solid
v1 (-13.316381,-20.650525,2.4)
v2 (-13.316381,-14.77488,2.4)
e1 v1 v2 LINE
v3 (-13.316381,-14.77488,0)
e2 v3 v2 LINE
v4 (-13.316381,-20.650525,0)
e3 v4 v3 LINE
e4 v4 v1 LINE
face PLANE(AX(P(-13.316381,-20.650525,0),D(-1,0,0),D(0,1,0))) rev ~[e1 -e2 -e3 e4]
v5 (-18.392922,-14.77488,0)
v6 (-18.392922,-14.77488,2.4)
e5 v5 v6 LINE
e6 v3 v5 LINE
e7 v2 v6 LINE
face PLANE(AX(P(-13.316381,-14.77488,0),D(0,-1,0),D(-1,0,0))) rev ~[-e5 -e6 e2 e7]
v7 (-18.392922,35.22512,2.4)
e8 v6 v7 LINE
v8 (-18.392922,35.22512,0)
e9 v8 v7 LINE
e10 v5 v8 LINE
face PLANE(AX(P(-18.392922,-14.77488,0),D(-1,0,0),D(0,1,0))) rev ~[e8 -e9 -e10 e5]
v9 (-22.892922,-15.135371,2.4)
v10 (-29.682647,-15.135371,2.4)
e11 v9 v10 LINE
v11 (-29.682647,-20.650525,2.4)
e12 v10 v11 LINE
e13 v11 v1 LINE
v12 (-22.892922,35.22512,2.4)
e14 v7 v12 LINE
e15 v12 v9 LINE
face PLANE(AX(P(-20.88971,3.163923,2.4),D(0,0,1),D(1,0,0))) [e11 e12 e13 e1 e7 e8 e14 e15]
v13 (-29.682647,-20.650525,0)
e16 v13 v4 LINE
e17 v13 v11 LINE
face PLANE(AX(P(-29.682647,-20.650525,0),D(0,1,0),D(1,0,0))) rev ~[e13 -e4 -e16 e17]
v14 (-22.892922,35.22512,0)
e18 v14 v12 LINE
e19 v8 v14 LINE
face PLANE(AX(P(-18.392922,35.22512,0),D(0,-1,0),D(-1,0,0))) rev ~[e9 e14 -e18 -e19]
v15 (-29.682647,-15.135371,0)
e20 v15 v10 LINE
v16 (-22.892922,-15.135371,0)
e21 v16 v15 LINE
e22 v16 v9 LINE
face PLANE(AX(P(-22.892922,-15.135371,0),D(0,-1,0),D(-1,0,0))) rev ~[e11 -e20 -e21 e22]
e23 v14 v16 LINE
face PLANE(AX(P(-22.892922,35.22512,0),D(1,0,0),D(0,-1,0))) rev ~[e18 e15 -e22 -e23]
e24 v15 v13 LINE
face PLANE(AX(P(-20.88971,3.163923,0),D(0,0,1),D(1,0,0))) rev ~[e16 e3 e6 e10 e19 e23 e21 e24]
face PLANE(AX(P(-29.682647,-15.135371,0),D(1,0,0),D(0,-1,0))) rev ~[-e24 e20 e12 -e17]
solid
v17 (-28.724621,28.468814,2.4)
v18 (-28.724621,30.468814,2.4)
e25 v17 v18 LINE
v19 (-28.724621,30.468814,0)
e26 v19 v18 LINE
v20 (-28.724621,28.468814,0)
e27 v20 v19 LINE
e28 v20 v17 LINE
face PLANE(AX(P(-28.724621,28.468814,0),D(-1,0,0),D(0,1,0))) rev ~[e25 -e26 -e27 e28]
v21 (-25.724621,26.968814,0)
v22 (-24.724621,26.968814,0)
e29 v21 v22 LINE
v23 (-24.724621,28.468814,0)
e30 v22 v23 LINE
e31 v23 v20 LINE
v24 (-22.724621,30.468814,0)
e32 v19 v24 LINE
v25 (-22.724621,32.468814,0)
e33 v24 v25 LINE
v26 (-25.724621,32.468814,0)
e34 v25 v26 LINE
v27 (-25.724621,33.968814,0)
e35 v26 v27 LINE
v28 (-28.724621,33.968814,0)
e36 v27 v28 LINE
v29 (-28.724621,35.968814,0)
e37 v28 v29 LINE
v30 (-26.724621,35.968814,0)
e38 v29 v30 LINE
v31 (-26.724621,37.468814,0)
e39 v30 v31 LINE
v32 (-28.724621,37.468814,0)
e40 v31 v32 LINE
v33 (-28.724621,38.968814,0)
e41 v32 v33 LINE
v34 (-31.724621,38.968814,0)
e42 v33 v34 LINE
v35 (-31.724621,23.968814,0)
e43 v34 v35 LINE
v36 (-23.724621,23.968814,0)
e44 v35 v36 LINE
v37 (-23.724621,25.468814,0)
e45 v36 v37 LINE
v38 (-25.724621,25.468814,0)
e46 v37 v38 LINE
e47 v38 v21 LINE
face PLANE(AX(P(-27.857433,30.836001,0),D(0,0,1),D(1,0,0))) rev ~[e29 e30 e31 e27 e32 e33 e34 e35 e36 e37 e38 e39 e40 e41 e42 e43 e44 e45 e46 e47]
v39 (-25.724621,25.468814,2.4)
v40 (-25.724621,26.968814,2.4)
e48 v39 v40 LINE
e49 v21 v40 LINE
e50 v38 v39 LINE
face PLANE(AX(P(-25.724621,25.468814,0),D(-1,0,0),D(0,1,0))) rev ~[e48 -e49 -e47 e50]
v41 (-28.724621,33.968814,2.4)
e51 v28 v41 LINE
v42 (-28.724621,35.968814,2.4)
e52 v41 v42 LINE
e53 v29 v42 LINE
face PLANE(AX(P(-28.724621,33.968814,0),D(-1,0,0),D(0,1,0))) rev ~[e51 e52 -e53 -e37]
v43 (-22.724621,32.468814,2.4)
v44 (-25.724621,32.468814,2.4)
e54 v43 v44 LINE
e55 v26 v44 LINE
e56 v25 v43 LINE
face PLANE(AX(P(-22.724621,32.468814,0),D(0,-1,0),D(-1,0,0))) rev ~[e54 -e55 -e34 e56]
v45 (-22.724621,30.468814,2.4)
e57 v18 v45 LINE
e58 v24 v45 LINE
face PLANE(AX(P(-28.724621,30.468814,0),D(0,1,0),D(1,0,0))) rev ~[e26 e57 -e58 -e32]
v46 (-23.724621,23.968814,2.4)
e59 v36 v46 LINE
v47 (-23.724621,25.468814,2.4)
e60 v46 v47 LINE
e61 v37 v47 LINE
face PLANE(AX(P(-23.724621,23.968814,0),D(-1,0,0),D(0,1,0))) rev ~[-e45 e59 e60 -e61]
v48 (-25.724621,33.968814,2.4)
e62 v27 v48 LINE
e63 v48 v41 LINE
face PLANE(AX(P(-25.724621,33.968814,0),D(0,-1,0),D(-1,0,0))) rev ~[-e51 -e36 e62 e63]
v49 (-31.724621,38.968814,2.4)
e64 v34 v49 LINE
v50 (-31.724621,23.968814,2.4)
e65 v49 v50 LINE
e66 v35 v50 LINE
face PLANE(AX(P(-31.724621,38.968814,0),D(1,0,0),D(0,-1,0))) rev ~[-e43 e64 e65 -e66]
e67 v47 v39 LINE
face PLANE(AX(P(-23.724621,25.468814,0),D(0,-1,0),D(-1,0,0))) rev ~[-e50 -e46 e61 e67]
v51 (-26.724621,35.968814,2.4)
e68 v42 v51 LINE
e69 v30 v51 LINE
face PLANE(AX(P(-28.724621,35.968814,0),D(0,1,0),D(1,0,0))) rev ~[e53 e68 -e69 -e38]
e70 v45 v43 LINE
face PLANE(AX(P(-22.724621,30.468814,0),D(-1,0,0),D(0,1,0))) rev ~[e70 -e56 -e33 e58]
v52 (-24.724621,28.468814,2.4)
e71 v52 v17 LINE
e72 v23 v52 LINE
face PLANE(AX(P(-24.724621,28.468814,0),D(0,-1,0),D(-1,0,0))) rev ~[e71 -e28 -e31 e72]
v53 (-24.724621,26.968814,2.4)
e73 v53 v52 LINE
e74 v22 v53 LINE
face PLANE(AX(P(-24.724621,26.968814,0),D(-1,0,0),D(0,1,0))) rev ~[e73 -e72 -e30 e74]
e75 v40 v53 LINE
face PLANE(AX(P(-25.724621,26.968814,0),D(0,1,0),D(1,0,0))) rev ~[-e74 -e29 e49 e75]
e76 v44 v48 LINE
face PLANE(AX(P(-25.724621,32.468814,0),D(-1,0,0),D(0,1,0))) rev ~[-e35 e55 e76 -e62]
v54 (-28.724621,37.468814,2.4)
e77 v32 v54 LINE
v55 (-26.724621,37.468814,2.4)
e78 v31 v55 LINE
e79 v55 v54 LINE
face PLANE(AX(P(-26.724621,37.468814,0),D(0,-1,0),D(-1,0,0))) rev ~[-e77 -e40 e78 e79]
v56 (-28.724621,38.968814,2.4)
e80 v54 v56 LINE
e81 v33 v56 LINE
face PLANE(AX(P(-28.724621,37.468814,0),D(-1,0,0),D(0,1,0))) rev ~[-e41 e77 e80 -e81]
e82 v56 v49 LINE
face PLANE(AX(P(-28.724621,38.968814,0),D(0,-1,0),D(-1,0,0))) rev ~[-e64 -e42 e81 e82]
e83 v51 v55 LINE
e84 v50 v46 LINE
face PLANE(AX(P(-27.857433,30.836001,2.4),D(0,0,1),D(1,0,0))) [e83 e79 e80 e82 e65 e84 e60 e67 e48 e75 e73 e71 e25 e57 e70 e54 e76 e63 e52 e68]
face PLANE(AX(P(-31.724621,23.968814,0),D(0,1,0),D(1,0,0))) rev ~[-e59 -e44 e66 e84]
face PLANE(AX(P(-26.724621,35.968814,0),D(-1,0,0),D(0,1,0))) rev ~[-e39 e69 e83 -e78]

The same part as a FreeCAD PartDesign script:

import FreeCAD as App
import Part
import Sketcher
from FreeCAD import Vector


def add_polygon(sketch, points):
    """Adds a closed chain of lines whose ends are joined by coincident constraints."""
    first, n = sketch.GeometryCount, len(points)
    for a, b in zip(points, points[1:] + points[:1]):
        sketch.addGeometry(Part.LineSegment(App.Vector(*a, 0), App.Vector(*b, 0)), False)
    for i in range(n):
        sketch.addConstraint(Sketcher.Constraint("Coincident", first + i, 2, first + (i + 1) % n, 1))

doc = App.newDocument("Part")
params = doc.addObject("Spreadsheet::Sheet", "Params")
for row, (alias, value) in enumerate([
    ("sketch1_width", "3 mm"),
    ("sketch1_width2", "8 mm"),
    ("sketch1_width3", "1 mm"),
    ("sketch1_height", "15 mm"),
    ("pad1_length", "2.4 mm"),
    ("sketch2_height", "50 mm"),
    ("sketch2_width", "4.5 mm"),
    ("pad2_length", "2.4 mm"),
], start=1):
    params.set(f"A{row}", alias)
    params.set(f"B{row}", "=" + value)
    params.setAlias(f"B{row}", alias)

body = doc.addObject("PartDesign::Body", "Body")

sketch1 = body.newObject("Sketcher::SketchObject", "Sketch")
sketch1.AttachmentSupport = (doc.getObject("XY_Plane"), [""])
sketch1.MapMode = "FlatFace"
add_polygon(sketch1, [(-28.7, 39), (-31.7, 39), (-31.7, 24), (-23.7, 24), (-23.7, 25.5), (-25.7, 25.5), (-25.7, 27), (-24.7, 27), (-24.7, 28.5), (-28.7, 28.5), (-28.7, 30.5), (-22.7, 30.5), (-22.7, 32.5), (-25.7, 32.5), (-25.7, 34), (-28.7, 34), (-28.7, 36), (-26.7, 36), (-26.7, 37.5), (-28.7, 37.5)])
sketch1.addConstraint(Sketcher.Constraint("Horizontal", 0))
sketch1.addConstraint(Sketcher.Constraint("Vertical", 1))
sketch1.addConstraint(Sketcher.Constraint("Horizontal", 2))
sketch1.addConstraint(Sketcher.Constraint("Vertical", 3))
sketch1.addConstraint(Sketcher.Constraint("Horizontal", 4))
sketch1.addConstraint(Sketcher.Constraint("Vertical", 5))
sketch1.addConstraint(Sketcher.Constraint("Horizontal", 6))
sketch1.addConstraint(Sketcher.Constraint("Vertical", 7))
sketch1.addConstraint(Sketcher.Constraint("Horizontal", 8))
sketch1.addConstraint(Sketcher.Constraint("Vertical", 9))
sketch1.addConstraint(Sketcher.Constraint("Horizontal", 10))
sketch1.addConstraint(Sketcher.Constraint("Vertical", 11))
sketch1.addConstraint(Sketcher.Constraint("Horizontal", 12))
sketch1.addConstraint(Sketcher.Constraint("Vertical", 13))
sketch1.addConstraint(Sketcher.Constraint("Horizontal", 14))
sketch1.addConstraint(Sketcher.Constraint("Vertical", 15))
sketch1.addConstraint(Sketcher.Constraint("Horizontal", 16))
sketch1.addConstraint(Sketcher.Constraint("Vertical", 17))
sketch1.addConstraint(Sketcher.Constraint("Horizontal", 18))
sketch1.addConstraint(Sketcher.Constraint("Vertical", 19))
sketch1.addConstraint(Sketcher.Constraint("Vertical", 5, 2, 12, 2))
sketch1.addConstraint(Sketcher.Constraint("Vertical", 9, 2, 14, 2))
sketch1.addConstraint(Sketcher.Constraint("Vertical", 15, 2, 18, 2))
sketch1.addConstraint(Sketcher.Constraint("Equal", 0, 12))
sketch1.addConstraint(Sketcher.Constraint("Equal", 12, 14))
sketch1.addConstraint(Sketcher.Constraint("Equal", 4, 16))
sketch1.addConstraint(Sketcher.Constraint("Equal", 3, 5))
sketch1.addConstraint(Sketcher.Constraint("Equal", 5, 7))
sketch1.addConstraint(Sketcher.Constraint("Equal", 18, 9))
sketch1.addConstraint(Sketcher.Constraint("Equal", 9, 11))
sketch1.addConstraint(Sketcher.Constraint("Equal", 7, 13))
sketch1.addConstraint(Sketcher.Constraint("Equal", 11, 15))
sketch1.addConstraint(Sketcher.Constraint("Equal", 13, 17))
sketch1.addConstraint(Sketcher.Constraint("Equal", 17, 19))
sketch1.addConstraint(Sketcher.Constraint("DistanceX", 0, 2, 0, 1, 3.0))
sketch1.addConstraint(Sketcher.Constraint("DistanceX", 2, 1, 2, 2, 8.0))
sketch1.addConstraint(Sketcher.Constraint("DistanceX", 6, 1, 6, 2, 1.0))
sketch1.addConstraint(Sketcher.Constraint("DistanceY", 1, 2, 1, 1, 15.0))
sketch1.addConstraint(Sketcher.Constraint("DistanceX", 0, 2, -1, 1, 31.724621))
sketch1.addConstraint(Sketcher.Constraint("DistanceY", -1, 1, 0, 2, 38.968814))
sketch1.setExpression("Constraints[54]", "Params.sketch1_width")
sketch1.setExpression("Constraints[55]", "Params.sketch1_width2")
sketch1.setExpression("Constraints[56]", "Params.sketch1_width3")
sketch1.setExpression("Constraints[57]", "Params.sketch1_height")
pad1 = body.newObject("PartDesign::Pad", "Pad")
pad1.Profile = sketch1
pad1.setExpression("Length", "Params.pad1_length")
body2 = doc.addObject("PartDesign::Body", "Body001")

sketch2 = body2.newObject("Sketcher::SketchObject", "Sketch001")
sketch2.AttachmentSupport = (doc.getObject("XY_Plane001"), [""])
sketch2.MapMode = "FlatFace"
add_polygon(sketch2, [(-18.4, 35.2), (-22.9, 35.2), (-22.9, -15.1), (-29.7, -15.1), (-29.7, -20.7), (-13.3, -20.7), (-13.3, -14.8), (-18.4, -14.8)])
sketch2.addConstraint(Sketcher.Constraint("Horizontal", 0))
sketch2.addConstraint(Sketcher.Constraint("Vertical", 1))
sketch2.addConstraint(Sketcher.Constraint("Horizontal", 2))
sketch2.addConstraint(Sketcher.Constraint("Vertical", 3))
sketch2.addConstraint(Sketcher.Constraint("Horizontal", 4))
sketch2.addConstraint(Sketcher.Constraint("Vertical", 5))
sketch2.addConstraint(Sketcher.Constraint("Horizontal", 6))
sketch2.addConstraint(Sketcher.Constraint("Vertical", 7))
sketch2.addConstraint(Sketcher.Constraint("DistanceY", 7, 1, 7, 2, 50.0))
sketch2.addConstraint(Sketcher.Constraint("DistanceX", 0, 2, 0, 1, 4.5))
sketch2.addConstraint(Sketcher.Constraint("DistanceX", 6, 2, 6, 1, 5.076541))
sketch2.addConstraint(Sketcher.Constraint("DistanceY", 1, 2, 1, 1, 50.360491))
sketch2.addConstraint(Sketcher.Constraint("DistanceX", 2, 2, 2, 1, 6.789725))
sketch2.addConstraint(Sketcher.Constraint("DistanceY", 3, 2, 3, 1, 5.515154))
sketch2.addConstraint(Sketcher.Constraint("DistanceX", 0, 2, -1, 1, 22.892922))
sketch2.addConstraint(Sketcher.Constraint("DistanceY", -1, 1, 0, 2, 35.22512))
sketch2.setExpression("Constraints[16]", "Params.sketch2_height")
sketch2.setExpression("Constraints[17]", "Params.sketch2_width")
pad2 = body2.newObject("PartDesign::Pad", "Pad001")
pad2.Profile = sketch2
pad2.setExpression("Length", "Params.pad2_length")

doc.recompute()
